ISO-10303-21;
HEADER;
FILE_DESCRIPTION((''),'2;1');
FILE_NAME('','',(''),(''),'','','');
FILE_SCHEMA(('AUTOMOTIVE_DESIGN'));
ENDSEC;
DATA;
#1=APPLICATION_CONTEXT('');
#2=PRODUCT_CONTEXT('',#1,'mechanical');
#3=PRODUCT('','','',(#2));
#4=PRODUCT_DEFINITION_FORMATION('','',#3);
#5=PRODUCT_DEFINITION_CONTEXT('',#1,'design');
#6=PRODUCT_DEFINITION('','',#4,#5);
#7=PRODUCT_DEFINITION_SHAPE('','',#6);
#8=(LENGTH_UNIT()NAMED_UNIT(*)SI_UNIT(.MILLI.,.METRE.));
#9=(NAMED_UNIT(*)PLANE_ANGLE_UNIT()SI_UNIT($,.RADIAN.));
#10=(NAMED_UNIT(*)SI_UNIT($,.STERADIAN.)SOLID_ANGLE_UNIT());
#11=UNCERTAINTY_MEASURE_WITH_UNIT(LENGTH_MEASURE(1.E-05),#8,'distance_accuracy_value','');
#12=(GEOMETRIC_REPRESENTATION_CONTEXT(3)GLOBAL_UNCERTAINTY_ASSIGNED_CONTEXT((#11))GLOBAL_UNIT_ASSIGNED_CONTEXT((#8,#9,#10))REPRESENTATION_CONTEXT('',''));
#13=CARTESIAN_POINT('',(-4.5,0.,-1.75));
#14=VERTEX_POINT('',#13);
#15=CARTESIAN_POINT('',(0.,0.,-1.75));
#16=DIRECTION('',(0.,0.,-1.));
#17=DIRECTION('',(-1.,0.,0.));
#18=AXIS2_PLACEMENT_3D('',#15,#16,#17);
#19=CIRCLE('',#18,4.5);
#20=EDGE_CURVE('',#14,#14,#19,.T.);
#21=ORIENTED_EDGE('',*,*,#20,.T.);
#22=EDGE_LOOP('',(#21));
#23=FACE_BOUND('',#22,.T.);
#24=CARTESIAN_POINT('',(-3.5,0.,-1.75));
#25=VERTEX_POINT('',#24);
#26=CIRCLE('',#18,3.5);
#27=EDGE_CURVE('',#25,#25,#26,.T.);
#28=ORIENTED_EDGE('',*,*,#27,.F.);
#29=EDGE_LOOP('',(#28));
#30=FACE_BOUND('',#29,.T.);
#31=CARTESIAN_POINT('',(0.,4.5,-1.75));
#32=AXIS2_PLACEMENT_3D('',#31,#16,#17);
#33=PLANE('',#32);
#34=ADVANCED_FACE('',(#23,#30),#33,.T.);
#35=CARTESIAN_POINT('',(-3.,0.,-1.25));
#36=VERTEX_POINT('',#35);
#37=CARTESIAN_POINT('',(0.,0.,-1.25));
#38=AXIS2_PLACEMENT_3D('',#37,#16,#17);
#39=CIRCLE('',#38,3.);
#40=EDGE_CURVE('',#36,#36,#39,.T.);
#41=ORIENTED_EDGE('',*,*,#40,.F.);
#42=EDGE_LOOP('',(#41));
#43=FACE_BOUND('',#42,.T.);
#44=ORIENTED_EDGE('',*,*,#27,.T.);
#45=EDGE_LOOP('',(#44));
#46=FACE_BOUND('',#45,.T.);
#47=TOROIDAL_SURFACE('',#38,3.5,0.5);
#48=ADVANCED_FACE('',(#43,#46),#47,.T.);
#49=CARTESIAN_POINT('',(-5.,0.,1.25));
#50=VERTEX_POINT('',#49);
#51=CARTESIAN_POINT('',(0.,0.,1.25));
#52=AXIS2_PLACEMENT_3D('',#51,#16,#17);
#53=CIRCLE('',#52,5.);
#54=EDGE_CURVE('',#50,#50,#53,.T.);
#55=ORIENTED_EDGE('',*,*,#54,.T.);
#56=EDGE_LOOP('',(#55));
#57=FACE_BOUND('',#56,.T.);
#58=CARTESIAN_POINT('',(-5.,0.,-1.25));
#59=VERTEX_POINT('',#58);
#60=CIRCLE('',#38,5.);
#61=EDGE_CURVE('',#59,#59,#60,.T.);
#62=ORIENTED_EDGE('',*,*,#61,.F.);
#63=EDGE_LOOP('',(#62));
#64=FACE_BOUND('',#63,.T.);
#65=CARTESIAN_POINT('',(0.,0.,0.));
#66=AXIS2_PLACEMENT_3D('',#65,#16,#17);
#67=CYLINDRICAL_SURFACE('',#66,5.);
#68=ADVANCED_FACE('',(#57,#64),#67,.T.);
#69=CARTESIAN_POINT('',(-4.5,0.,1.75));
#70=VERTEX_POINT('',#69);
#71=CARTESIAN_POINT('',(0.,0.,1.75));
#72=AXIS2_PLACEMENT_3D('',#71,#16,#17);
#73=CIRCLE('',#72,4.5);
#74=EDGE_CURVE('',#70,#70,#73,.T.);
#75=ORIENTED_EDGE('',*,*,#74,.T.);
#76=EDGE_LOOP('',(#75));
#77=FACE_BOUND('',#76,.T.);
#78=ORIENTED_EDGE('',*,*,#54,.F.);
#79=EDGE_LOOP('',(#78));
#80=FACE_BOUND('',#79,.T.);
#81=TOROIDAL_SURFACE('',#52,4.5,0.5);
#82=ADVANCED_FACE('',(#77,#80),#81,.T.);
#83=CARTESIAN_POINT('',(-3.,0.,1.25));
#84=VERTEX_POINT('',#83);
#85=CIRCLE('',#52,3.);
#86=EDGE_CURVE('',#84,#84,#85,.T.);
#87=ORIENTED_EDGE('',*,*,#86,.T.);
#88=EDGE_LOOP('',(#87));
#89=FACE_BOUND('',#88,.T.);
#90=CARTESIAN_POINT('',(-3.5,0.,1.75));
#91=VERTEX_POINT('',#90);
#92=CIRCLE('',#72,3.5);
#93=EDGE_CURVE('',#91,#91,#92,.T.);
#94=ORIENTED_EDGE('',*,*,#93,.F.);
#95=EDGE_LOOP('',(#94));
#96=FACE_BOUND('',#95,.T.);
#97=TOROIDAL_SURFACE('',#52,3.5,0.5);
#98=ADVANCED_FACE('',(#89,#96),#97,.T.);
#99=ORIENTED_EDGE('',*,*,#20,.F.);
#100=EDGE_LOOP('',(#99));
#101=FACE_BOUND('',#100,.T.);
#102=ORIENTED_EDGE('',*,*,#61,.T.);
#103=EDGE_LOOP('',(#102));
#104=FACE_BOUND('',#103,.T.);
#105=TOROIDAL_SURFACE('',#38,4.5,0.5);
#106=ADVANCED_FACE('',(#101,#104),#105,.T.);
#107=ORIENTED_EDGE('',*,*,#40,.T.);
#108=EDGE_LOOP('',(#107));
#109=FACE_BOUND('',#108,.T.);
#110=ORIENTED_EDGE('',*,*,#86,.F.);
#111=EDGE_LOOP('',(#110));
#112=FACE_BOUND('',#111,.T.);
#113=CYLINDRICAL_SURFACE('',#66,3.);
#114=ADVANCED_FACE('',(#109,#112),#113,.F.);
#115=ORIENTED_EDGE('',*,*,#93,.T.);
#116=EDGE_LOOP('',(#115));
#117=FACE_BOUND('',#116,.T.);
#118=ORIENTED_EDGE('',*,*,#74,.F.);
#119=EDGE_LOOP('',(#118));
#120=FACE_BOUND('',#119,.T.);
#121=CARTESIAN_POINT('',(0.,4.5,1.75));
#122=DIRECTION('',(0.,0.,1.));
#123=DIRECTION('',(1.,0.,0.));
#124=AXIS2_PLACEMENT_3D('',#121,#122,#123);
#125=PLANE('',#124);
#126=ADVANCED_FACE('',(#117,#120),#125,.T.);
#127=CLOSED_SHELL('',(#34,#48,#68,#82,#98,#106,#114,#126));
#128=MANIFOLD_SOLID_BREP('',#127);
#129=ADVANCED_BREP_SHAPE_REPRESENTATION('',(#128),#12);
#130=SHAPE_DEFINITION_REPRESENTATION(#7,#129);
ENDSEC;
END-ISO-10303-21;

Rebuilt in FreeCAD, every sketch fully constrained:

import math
import FreeCAD as App
import Part
import Sketcher

V = App.Vector
Q = App.Units.Quantity

doc = App.newDocument("Part")
params = doc.addObject("Spreadsheet::Sheet", "Params")
for row, (alias, value) in enumerate([
    ("sketch1_radius", "0.5 mm"),
    ("sketch1_width", "1 mm"),
    ("sketch1_height", "2.5 mm"),
    ("revolution_angle", "360 deg"),
], start=1):
    params.set(f"A{row}", alias)
    params.set(f"B{row}", "=" + value)
    params.setAlias(f"B{row}", alias)

body = doc.addObject("PartDesign::Body", "Body")

sketch1 = body.newObject("Sketcher::SketchObject", "Sketch")
sketch1.AttachmentSupport = (doc.getObject("YZ_Plane"), [""])
sketch1.MapMode = "FlatFace"
sketch1.addGeometry(Part.LineSegment(V(5, -1.25, 0), V(5, 1.25, 0)), False)
sketch1.addGeometry(Part.ArcOfCircle(Part.Circle(V(4.5, 1.25, 0), V(0, 0, 1), 0.5), math.radians(0), math.radians(90)), False)
sketch1.addGeometry(Part.LineSegment(V(4.5, 1.75, 0), V(3.5, 1.75, 0)), False)
sketch1.addGeometry(Part.ArcOfCircle(Part.Circle(V(3.5, 1.25, 0), V(0, 0, 1), 0.5), math.radians(90), math.radians(180)), False)
sketch1.addGeometry(Part.LineSegment(V(3, 1.25, 0), V(3, -1.25, 0)), False)
sketch1.addGeometry(Part.ArcOfCircle(Part.Circle(V(3.5, -1.25, 0), V(0, 0, 1), 0.5), math.radians(180), math.radians(270)), False)
sketch1.addGeometry(Part.LineSegment(V(3.5, -1.75, 0), V(4.5, -1.75, 0)), False)
sketch1.addGeometry(Part.ArcOfCircle(Part.Circle(V(4.5, -1.25, 0), V(0, 0, 1), 0.5), math.radians(-90), math.radians(0)), False)
sketch1.addConstraint(Sketcher.Constraint("Tangent", 0, 2, 1, 1))
sketch1.addConstraint(Sketcher.Constraint("Tangent", 1, 2, 2, 1))
sketch1.addConstraint(Sketcher.Constraint("Tangent", 2, 2, 3, 1))
sketch1.addConstraint(Sketcher.Constraint("Tangent", 3, 2, 4, 1))
sketch1.addConstraint(Sketcher.Constraint("Tangent", 4, 2, 5, 1))
sketch1.addConstraint(Sketcher.Constraint("Tangent", 5, 2, 6, 1))
sketch1.addConstraint(Sketcher.Constraint("Tangent", 6, 2, 7, 1))
sketch1.addConstraint(Sketcher.Constraint("Tangent", 7, 2, 0, 1))
sketch1.addConstraint(Sketcher.Constraint("Vertical", 0))
sketch1.addConstraint(Sketcher.Constraint("Horizontal", 2))
sketch1.addConstraint(Sketcher.Constraint("Vertical", 4))
sketch1.addConstraint(Sketcher.Constraint("Horizontal", 6))
sketch1.addConstraint(Sketcher.Constraint("Equal", 1, 3))
sketch1.addConstraint(Sketcher.Constraint("Equal", 3, 5))
sketch1.addConstraint(Sketcher.Constraint("Equal", 5, 7))
sketch1.addConstraint(Sketcher.Constraint("Radius", 1, Q("0.5 mm")))
sketch1.addConstraint(Sketcher.Constraint("DistanceX", 2, 2, 2, 1, Q("1 mm")))
sketch1.addConstraint(Sketcher.Constraint("DistanceY", 0, 1, 0, 2, Q("2.5 mm")))
sketch1.addConstraint(Sketcher.Constraint("DistanceX", -1, 1, 0, 2, Q("5 mm")))
sketch1.addConstraint(Sketcher.Constraint("DistanceY", -1, 1, 1, 3, Q("1.25 mm")))
sketch1.setExpression("Constraints[15]", "Params.sketch1_radius")
sketch1.setExpression("Constraints[16]", "Params.sketch1_width")
sketch1.setExpression("Constraints[17]", "Params.sketch1_height")
revolution = body.newObject("PartDesign::Revolution", "Revolution")
revolution.Profile = sketch1
revolution.ReferenceAxis = (sketch1, ["V_Axis"])
revolution.setExpression("Angle", "Params.revolution_angle")

doc.recompute()
